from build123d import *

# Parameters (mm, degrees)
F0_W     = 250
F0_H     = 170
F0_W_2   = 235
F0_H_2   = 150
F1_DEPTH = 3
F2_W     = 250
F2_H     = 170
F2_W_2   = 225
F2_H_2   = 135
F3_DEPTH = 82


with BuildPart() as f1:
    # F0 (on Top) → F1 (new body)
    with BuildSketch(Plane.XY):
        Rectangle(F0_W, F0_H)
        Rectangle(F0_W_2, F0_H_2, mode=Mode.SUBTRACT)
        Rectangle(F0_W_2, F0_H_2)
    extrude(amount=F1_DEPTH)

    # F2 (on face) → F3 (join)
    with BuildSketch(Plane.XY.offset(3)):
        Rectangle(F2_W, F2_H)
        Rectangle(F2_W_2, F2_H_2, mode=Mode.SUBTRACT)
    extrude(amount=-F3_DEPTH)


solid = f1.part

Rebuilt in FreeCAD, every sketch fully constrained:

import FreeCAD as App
import Part
import Sketcher

V = App.Vector
Q = App.Units.Quantity


def add_polygon(sketch, points):
    """Adds a closed chain of lines whose ends are joined by coincident constraints."""
    first, n = sketch.GeometryCount, len(points)
    for a, b in zip(points, points[1:] + points[:1]):
        sketch.addGeometry(Part.LineSegment(App.Vector(*a, 0), App.Vector(*b, 0)), False)
    for i in range(n):
        sketch.addConstraint(Sketcher.Constraint("Coincident", first + i, 2, first + (i + 1) % n, 1))

doc = App.newDocument("Part")
params = doc.addObject("Spreadsheet::Sheet", "Params")
for row, (alias, value) in enumerate([
    ("sketch1_width", "250 mm"),
    ("sketch1_height", "170 mm"),
    ("pad1_length", "3 mm"),
    ("sketch2_width", "250 mm"),
    ("sketch2_width2", "225 mm"),
    ("sketch2_height", "170 mm"),
    ("sketch2_height2", "135 mm"),
    ("pad2_length", "82 mm"),
], start=1):
    params.set(f"A{row}", alias)
    params.set(f"B{row}", "=" + value)
    params.setAlias(f"B{row}", alias)

body = doc.addObject("PartDesign::Body", "Body")

# Sketch on XY plane
sketch1 = body.newObject("Sketcher::SketchObject", "Sketch")
sketch1.AttachmentSupport = (doc.getObject("XY_Plane"), [""])
sketch1.MapMode = "FlatFace"
add_polygon(sketch1, [(-125, 85), (-125, -85), (125, -85), (125, 85)])  # lines 0-3
sketch1.addConstraint(Sketcher.Constraint("Vertical", 0))
sketch1.addConstraint(Sketcher.Constraint("Horizontal", 1))
sketch1.addConstraint(Sketcher.Constraint("Vertical", 2))
sketch1.addConstraint(Sketcher.Constraint("Horizontal", 3))
sketch1.addConstraint(Sketcher.Constraint("Symmetric", 0, 2, 2, 2, -1, 1))
sketch1.addConstraint(Sketcher.Constraint("DistanceX", 1, 1, 1, 2, Q("250 mm")))
sketch1.addConstraint(Sketcher.Constraint("DistanceY", 0, 2, 0, 1, Q("170 mm")))
sketch1.setExpression("Constraints[9]", "Params.sketch1_width")
sketch1.setExpression("Constraints[10]", "Params.sketch1_height")
pad1 = body.newObject("PartDesign::Pad", "Pad")
pad1.Profile = sketch1
pad1.setExpression("Length", "Params.pad1_length")

# Sketch on XY plane
sketch2 = body.newObject("Sketcher::SketchObject", "Sketch001")
sketch2.AttachmentSupport = (doc.getObject("XY_Plane"), [""])
sketch2.MapMode = "FlatFace"
sketch2.AttachmentOffset = App.Placement(V(0, 0, 3), App.Rotation())
add_polygon(sketch2, [(-125, 85), (-125, -85), (125, -85), (125, 85)])  # lines 0-3
add_polygon(sketch2, [(112.5, -67.5), (-112.5, -67.5), (-112.5, 67.5), (112.5, 67.5)])  # lines 4-7
sketch2.addConstraint(Sketcher.Constraint("Vertical", 0))
sketch2.addConstraint(Sketcher.Constraint("Horizontal", 1))
sketch2.addConstraint(Sketcher.Constraint("Vertical", 2))
sketch2.addConstraint(Sketcher.Constraint("Horizontal", 3))
sketch2.addConstraint(Sketcher.Constraint("Horizontal", 4))
sketch2.addConstraint(Sketcher.Constraint("Vertical", 5))
sketch2.addConstraint(Sketcher.Constraint("Horizontal", 6))
sketch2.addConstraint(Sketcher.Constraint("Vertical", 7))
sketch2.addConstraint(Sketcher.Constraint("Symmetric", 0, 2, 2, 2, -1, 1))
sketch2.addConstraint(Sketcher.Constraint("Symmetric", 4, 2, 6, 2, -1, 1))
sketch2.addConstraint(Sketcher.Constraint("DistanceX", 1, 1, 1, 2, Q("250 mm")))
sketch2.addConstraint(Sketcher.Constraint("DistanceX", 4, 2, 4, 1, Q("225 mm")))
sketch2.addConstraint(Sketcher.Constraint("DistanceY", 0, 2, 0, 1, Q("170 mm")))
sketch2.addConstraint(Sketcher.Constraint("DistanceY", 5, 1, 5, 2, Q("135 mm")))
sketch2.setExpression("Constraints[18]", "Params.sketch2_width")
sketch2.setExpression("Constraints[19]", "Params.sketch2_width2")
sketch2.setExpression("Constraints[20]", "Params.sketch2_height")
sketch2.setExpression("Constraints[21]", "Params.sketch2_height2")
pad2 = body.newObject("PartDesign::Pad", "Pad001")
pad2.Profile = sketch2
pad2.setExpression("Length", "Params.pad2_length")
pad2.Reversed = True

doc.recompute()
